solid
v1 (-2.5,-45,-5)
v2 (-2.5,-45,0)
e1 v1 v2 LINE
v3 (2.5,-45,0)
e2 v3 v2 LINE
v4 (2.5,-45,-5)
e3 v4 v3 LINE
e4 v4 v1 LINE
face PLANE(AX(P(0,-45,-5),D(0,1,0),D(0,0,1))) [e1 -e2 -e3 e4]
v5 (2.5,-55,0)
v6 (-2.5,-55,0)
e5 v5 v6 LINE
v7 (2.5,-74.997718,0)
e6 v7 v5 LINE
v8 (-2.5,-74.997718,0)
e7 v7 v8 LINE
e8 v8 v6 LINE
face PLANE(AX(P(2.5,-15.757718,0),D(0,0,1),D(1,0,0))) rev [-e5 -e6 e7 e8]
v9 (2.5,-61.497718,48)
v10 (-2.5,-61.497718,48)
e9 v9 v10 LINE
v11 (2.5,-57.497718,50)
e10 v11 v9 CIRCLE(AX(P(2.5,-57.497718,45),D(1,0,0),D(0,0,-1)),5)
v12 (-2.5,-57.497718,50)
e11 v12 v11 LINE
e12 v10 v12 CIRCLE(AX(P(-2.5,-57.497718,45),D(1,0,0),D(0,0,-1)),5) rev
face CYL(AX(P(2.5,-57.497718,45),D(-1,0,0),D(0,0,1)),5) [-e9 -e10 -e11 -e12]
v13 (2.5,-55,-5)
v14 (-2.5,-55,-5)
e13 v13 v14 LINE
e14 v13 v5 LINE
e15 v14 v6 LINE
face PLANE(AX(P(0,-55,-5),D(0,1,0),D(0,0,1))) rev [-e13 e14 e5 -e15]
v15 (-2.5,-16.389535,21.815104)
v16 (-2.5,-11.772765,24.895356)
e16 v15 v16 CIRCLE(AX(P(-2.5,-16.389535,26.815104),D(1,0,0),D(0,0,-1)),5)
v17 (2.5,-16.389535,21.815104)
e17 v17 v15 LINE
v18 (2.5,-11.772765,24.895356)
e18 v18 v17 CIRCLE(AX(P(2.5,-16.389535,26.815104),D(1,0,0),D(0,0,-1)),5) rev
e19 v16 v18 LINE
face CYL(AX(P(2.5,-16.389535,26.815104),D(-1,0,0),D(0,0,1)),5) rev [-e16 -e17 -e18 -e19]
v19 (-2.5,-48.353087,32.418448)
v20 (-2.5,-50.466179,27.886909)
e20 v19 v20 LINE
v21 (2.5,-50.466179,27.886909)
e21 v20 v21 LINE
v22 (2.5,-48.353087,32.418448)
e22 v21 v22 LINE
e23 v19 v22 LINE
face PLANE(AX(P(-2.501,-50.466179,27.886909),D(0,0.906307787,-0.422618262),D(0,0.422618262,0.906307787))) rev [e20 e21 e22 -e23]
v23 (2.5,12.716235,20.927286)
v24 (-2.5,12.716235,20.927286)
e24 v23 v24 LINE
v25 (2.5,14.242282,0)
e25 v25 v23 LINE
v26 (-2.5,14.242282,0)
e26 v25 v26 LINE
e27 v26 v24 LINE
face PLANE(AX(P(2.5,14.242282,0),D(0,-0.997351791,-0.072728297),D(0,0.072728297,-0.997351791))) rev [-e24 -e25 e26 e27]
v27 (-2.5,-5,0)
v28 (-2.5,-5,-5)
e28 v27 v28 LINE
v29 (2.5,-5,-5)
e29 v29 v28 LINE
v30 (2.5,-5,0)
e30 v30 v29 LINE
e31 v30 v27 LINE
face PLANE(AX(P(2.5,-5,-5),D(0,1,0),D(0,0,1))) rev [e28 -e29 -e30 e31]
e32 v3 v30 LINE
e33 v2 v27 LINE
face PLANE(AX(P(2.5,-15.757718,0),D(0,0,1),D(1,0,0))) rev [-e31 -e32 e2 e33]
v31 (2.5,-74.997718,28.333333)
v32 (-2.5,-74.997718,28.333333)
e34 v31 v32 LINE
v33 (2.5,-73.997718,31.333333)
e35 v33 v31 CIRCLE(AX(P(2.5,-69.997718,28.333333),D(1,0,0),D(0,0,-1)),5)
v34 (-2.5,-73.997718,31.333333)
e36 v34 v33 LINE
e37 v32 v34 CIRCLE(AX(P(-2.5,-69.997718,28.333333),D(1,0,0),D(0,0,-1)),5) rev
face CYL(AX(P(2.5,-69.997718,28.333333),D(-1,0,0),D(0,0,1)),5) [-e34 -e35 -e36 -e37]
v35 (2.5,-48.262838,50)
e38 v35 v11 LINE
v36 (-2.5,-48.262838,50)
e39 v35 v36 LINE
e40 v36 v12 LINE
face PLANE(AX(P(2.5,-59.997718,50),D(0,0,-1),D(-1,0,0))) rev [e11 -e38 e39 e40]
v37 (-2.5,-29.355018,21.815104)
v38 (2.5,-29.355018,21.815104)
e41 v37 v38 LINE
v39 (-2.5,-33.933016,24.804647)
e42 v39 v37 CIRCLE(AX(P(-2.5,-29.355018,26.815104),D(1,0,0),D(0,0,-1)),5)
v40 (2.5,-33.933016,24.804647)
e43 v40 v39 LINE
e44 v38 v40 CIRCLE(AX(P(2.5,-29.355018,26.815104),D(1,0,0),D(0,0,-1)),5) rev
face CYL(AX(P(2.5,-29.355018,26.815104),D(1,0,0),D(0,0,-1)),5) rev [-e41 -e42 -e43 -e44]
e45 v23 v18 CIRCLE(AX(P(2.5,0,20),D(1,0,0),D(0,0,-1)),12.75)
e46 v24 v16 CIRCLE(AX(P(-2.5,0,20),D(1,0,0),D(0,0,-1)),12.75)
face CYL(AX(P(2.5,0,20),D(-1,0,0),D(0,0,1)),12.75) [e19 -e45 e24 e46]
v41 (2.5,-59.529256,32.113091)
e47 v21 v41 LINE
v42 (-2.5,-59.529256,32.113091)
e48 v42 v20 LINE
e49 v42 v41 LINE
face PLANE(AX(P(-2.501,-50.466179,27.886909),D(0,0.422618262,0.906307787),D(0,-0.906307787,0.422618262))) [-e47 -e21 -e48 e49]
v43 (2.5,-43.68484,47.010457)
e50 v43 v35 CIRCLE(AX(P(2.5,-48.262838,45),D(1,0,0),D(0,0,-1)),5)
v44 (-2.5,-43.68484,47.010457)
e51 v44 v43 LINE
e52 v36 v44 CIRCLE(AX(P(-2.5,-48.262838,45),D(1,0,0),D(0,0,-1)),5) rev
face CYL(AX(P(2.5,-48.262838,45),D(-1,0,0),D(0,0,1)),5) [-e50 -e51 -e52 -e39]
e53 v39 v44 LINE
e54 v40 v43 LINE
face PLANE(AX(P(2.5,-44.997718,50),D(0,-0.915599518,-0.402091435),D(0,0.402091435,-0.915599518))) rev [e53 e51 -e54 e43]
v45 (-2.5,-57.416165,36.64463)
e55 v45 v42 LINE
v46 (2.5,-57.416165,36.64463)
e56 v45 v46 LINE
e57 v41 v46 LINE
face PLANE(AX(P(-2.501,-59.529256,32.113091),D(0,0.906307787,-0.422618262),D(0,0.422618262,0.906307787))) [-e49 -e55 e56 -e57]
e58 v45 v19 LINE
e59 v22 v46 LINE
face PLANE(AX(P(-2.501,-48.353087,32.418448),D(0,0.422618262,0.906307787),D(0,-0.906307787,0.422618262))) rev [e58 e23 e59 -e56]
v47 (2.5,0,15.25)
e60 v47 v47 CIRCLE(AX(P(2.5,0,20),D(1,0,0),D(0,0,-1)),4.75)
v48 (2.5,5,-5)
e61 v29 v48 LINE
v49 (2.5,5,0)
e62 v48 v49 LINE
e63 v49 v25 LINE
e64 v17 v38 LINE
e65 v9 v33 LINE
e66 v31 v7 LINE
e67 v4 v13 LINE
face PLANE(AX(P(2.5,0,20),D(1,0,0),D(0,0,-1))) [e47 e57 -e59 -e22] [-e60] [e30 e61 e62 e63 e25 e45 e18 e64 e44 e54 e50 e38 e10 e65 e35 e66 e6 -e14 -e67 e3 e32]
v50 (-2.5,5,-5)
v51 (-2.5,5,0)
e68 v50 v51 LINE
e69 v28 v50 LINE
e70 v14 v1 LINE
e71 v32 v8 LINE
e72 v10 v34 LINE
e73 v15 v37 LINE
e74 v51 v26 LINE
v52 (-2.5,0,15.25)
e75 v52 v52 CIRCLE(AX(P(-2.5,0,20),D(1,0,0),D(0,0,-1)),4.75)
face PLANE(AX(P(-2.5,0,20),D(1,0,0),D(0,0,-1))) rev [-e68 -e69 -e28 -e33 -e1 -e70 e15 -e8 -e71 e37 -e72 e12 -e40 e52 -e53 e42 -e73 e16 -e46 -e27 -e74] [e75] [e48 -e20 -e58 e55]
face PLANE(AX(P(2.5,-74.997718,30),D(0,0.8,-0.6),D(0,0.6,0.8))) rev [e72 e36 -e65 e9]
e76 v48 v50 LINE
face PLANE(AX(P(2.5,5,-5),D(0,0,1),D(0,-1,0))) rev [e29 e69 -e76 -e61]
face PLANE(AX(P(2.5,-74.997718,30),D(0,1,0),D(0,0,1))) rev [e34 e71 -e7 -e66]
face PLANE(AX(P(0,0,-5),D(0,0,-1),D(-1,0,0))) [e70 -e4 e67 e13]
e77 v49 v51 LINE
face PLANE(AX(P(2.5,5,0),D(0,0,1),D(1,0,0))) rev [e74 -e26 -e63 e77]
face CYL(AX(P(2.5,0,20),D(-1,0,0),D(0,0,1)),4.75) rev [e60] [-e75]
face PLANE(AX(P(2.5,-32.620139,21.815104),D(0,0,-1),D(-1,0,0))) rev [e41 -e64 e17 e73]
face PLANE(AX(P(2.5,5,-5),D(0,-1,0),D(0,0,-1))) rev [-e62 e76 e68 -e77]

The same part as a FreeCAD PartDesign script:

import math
import FreeCAD as App
import Part
import Sketcher

V = App.Vector
Q = App.Units.Quantity


def edges_at(feature, points):
    """Names of the edges that pass closest to the given points."""
    edges = feature.Shape.Edges
    near = lambda p: min(range(len(edges)), key=lambda i: edges[i].distToShape(Part.Vertex(*p))[0])
    return sorted({f"Edge{near(p) + 1}" for p in points})

doc = App.newDocument("Part")
params = doc.addObject("Spreadsheet::Sheet", "Params")
for row, (alias, value) in enumerate([
    ("sketch1_diameter", "9.5 mm"),
    ("sketch1_width", "10 mm"),
    ("sketch1_width2", "20 mm"),
    ("sketch1_width3", "15 mm"),
    ("sketch1_height", "5 mm"),
    ("pad1_length", "5 mm"),
    ("fillet_radius", "5 mm"),
    ("sketch2_length", "10 mm"),
    ("sketch2_length2", "5 mm"),
    ("sketch3_width", "5 mm"),
    ("sketch3_height", "10 mm"),
    ("pad2_length", "5 mm"),
], start=1):
    params.set(f"A{row}", alias)
    params.set(f"B{row}", "=" + value)
    params.setAlias(f"B{row}", alias)

body = doc.addObject("PartDesign::Body", "Body")

# Sketch on YZ plane
sketch1 = body.newObject("Sketcher::SketchObject", "Sketch")
sketch1.AttachmentSupport = (doc.getObject("YZ_Plane"), [""])
sketch1.MapMode = "FlatFace"
sketch1.addGeometry([
    Part.LineSegment(V(-5, 0, 0), V(-5, -5, 0)),  # 0
    Part.LineSegment(V(-5, -5, 0), V(5, -5, 0)),  # 1
    Part.LineSegment(V(5, -5, 0), V(5, 0, 0)),  # 2
    Part.LineSegment(V(5, 0, 0), V(14.242282, 0, 0)),  # 3
    Part.LineSegment(V(14.242282, 0, 0), V(12.716235, 20.927286, 0)),  # 4
    Part.ArcOfCircle(Part.Circle(V(0, 20, 0), V(0, 0, 1), 12.75), math.radians(4.170707), math.radians(171.815504)),  # 5
    Part.LineSegment(V(-12.620139, 21.815104, 0), V(-32.620139, 21.815104, 0)),  # 6
    Part.LineSegment(V(-32.620139, 21.815104, 0), V(-44.997718, 50, 0)),  # 7
    Part.LineSegment(V(-44.997718, 50, 0), V(-59.997718, 50, 0)),  # 8
    Part.LineSegment(V(-59.997718, 50, 0), V(-74.997718, 30, 0)),  # 9
    Part.LineSegment(V(-74.997718, 30, 0), V(-74.997718, 0, 0)),  # 10
    Part.LineSegment(V(-74.997718, 0, 0), V(-5, 0, 0)),  # 11
    Part.Circle(V(0, 20, 0), V(0, 0, 1), 4.75),  # 12
], False)
sketch1.addConstraint([
    Sketcher.Constraint("Coincident", 0, 2, 1, 1),
    Sketcher.Constraint("Coincident", 1, 2, 2, 1),
    Sketcher.Constraint("Coincident", 2, 2, 3, 1),
    Sketcher.Constraint("Coincident", 3, 2, 4, 1),
    Sketcher.Constraint("Tangent", 4, 2, 5, 1),
    Sketcher.Constraint("Coincident", 5, 2, 6, 1),
    Sketcher.Constraint("Coincident", 6, 2, 7, 1),
    Sketcher.Constraint("Coincident", 7, 2, 8, 1),
    Sketcher.Constraint("Coincident", 8, 2, 9, 1),
    Sketcher.Constraint("Coincident", 9, 2, 10, 1),
    Sketcher.Constraint("Coincident", 10, 2, 11, 1),
    Sketcher.Constraint("Coincident", 11, 2, 0, 1),
    Sketcher.Constraint("Vertical", 0),
    Sketcher.Constraint("Horizontal", 1),
    Sketcher.Constraint("Vertical", 2),
    Sketcher.Constraint("Horizontal", 3),
    Sketcher.Constraint("Horizontal", 6),
    Sketcher.Constraint("Horizontal", 8),
    Sketcher.Constraint("Vertical", 10),
    Sketcher.Constraint("Horizontal", 11),
    Sketcher.Constraint("Coincident", 12, 3, 5, 3),
    Sketcher.Constraint("Symmetric", 2, 2, 11, 2, -1, 1),
    Sketcher.Constraint("PointOnObject", 5, 3, -2),
    Sketcher.Constraint("PointOnObject", 2, 2, -1),
    Sketcher.Constraint("Diameter", 12, Q("9.5 mm")),
    Sketcher.Constraint("DistanceX", 1, 1, 1, 2, Q("10 mm")),
    Sketcher.Constraint("DistanceX", 6, 2, 6, 1, Q("20 mm")),
    Sketcher.Constraint("DistanceX", 8, 2, 8, 1, Q("15 mm")),
    Sketcher.Constraint("DistanceY", 0, 2, 0, 1, Q("5 mm")),
    Sketcher.Constraint("DistanceY", 10, 2, 10, 1, Q("30 mm")),
    Sketcher.Constraint("Radius", 5, Q("12.75 mm")),
    Sketcher.Constraint("Distance", 9, Q("25 mm")),
    Sketcher.Constraint("DistanceY", -1, 1, 5, 3, Q("20 mm")),
    Sketcher.Constraint("DistanceY", -1, 1, 7, 2, Q("50 mm")),
    Sketcher.Constraint("DistanceX", 3, 1, 3, 2, Q("9.242282 mm")),
    Sketcher.Constraint("DistanceX", 11, 1, 11, 2, Q("69.997718 mm")),
    Sketcher.Constraint("DistanceX", 5, 2, -1, 1, Q("12.620139 mm")),
])
sketch1.setExpression("Constraints[24]", "Params.sketch1_diameter")
sketch1.setExpression("Constraints[25]", "Params.sketch1_width")
sketch1.setExpression("Constraints[26]", "Params.sketch1_width2")
sketch1.setExpression("Constraints[27]", "Params.sketch1_width3")
sketch1.setExpression("Constraints[28]", "Params.sketch1_height")
pad1 = body.newObject("PartDesign::Pad", "Pad")
pad1.Profile = sketch1
pad1.setExpression("Length", "Params.pad1_length")
pad1.Midplane = True
doc.recompute()

fillet = body.newObject("PartDesign::Fillet", "Fillet")
fillet.Base = (pad1, edges_at(pad1, [
    (0, -74.998, 30),
    (0, -59.998, 50),
    (0, -44.998, 50),
    (0, -32.62, 21.815),
    (0, -12.62, 21.815),
]))
fillet.setExpression("Radius", "Params.fillet_radius")

# Sketch on YZ plane
sketch2 = body.newObject("Sketcher::SketchObject", "Sketch001")
sketch2.AttachmentSupport = (doc.getObject("YZ_Plane"), [""])
sketch2.MapMode = "FlatFace"
sketch2.AttachmentOffset = App.Placement(V(0, 0, 2.5), App.Rotation())
sketch2.addGeometry([
    Part.LineSegment(V(-59.529256, 32.113091, 0), V(-50.466179, 27.886909, 0)),
    Part.LineSegment(V(-50.466179, 27.886909, 0), V(-48.353087, 32.418448, 0)),
    Part.LineSegment(V(-48.353087, 32.418448, 0), V(-57.416165, 36.64463, 0)),
    Part.LineSegment(V(-57.416165, 36.64463, 0), V(-59.529256, 32.113091, 0)),
], False)
sketch2.addConstraint([
    Sketcher.Constraint("Coincident", 0, 2, 1, 1),
    Sketcher.Constraint("Coincident", 1, 2, 2, 1),
    Sketcher.Constraint("Coincident", 2, 2, 3, 1),
    Sketcher.Constraint("Coincident", 3, 2, 0, 1),
    Sketcher.Constraint("Perpendicular", 0, 1),
    Sketcher.Constraint("Perpendicular", 1, 2),
    Sketcher.Constraint("Perpendicular", 2, 3),
    Sketcher.Constraint("Angle", 0, Q("-25 deg")),
    Sketcher.Constraint("Distance", 0, Q("10 mm")),
    Sketcher.Constraint("Distance", 1, Q("5 mm")),
    Sketcher.Constraint("DistanceX", 0, 2, -1, 1, Q("50.466179 mm")),
    Sketcher.Constraint("DistanceY", -1, 1, 0, 2, Q("27.886909 mm")),
])
sketch2.setExpression("Constraints[8]", "Params.sketch2_length")
sketch2.setExpression("Constraints[9]", "Params.sketch2_length2")
pocket1 = body.newObject("PartDesign::Pocket", "Pocket")
pocket1.Profile = sketch2
pocket1.Type = "UpToFirst"

# Sketch on XY plane
sketch3 = body.newObject("Sketcher::SketchObject", "Sketch002")
sketch3.AttachmentSupport = (doc.getObject("XY_Plane"), [""])
sketch3.MapMode = "FlatFace"
sketch3.addGeometry([
    Part.LineSegment(V(-2.5, -55, 0), V(-2.5, -45, 0)),
    Part.LineSegment(V(-2.5, -45, 0), V(2.5, -45, 0)),
    Part.LineSegment(V(2.5, -45, 0), V(2.5, -55, 0)),
    Part.LineSegment(V(2.5, -55, 0), V(-2.5, -55, 0)),
], False)
sketch3.addConstraint([
    Sketcher.Constraint("Coincident", 0, 2, 1, 1),
    Sketcher.Constraint("Coincident", 1, 2, 2, 1),
    Sketcher.Constraint("Coincident", 2, 2, 3, 1),
    Sketcher.Constraint("Coincident", 3, 2, 0, 1),
    Sketcher.Constraint("Vertical", 0),
    Sketcher.Constraint("Horizontal", 1),
    Sketcher.Constraint("Vertical", 2),
    Sketcher.Constraint("Horizontal", 3),
    Sketcher.Constraint("DistanceX", 1, 1, 1, 2, Q("5 mm")),
    Sketcher.Constraint("DistanceY", 0, 1, 0, 2, Q("10 mm")),
    Sketcher.Constraint("DistanceY", 0, 2, -1, 1, Q("45 mm")),
    Sketcher.Constraint("DistanceX", 0, 2, -1, 1, Q("2.5 mm")),
])
sketch3.setExpression("Constraints[8]", "Params.sketch3_width")
sketch3.setExpression("Constraints[9]", "Params.sketch3_height")
pad2 = body.newObject("PartDesign::Pad", "Pad001")
pad2.Profile = sketch3
pad2.setExpression("Length", "Params.pad2_length")
pad2.Reversed = True

doc.recompute()
